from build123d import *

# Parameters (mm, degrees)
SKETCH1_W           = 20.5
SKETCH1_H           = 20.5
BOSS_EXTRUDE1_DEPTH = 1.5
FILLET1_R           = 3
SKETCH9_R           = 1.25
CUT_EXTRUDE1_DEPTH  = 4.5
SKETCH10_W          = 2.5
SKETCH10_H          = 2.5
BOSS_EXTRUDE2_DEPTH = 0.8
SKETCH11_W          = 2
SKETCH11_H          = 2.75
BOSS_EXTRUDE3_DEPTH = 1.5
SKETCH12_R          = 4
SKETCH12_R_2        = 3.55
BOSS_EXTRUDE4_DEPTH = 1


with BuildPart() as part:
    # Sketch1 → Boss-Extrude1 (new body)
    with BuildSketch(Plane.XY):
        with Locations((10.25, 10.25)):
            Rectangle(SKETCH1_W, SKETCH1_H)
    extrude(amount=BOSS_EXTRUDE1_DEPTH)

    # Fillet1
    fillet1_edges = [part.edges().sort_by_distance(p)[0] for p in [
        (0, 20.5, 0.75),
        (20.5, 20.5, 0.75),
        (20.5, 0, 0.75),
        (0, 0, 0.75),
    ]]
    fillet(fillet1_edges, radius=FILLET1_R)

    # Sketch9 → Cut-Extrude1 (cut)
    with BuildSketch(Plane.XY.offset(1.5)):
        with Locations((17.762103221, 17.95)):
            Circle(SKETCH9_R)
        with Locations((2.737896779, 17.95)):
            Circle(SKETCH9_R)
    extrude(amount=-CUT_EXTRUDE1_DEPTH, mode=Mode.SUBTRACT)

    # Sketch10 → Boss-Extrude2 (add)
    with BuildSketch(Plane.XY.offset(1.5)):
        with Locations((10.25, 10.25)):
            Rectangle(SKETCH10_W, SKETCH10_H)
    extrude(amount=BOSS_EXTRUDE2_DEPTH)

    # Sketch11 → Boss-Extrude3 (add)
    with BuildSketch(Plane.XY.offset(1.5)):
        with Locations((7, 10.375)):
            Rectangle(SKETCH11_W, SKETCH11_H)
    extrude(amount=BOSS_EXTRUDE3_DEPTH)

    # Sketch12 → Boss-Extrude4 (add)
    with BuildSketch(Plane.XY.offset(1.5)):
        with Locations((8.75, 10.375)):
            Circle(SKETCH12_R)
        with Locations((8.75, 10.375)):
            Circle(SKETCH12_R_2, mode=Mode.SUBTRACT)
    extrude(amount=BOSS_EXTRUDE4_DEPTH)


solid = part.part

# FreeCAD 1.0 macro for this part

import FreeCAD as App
import Part
import Sketcher

V = App.Vector


def edges_at(feature, points):
    """Names of the edges that pass closest to the given points."""
    edges = feature.Shape.Edges
    near = lambda p: min(range(len(edges)), key=lambda i: edges[i].distToShape(Part.Vertex(*p))[0])
    return sorted({f"Edge{near(p) + 1}" for p in points})


def add_polygon(sketch, points):
    """Adds a closed chain of lines whose ends are joined by coincident constraints."""
    first, n = sketch.GeometryCount, len(points)
    for a, b in zip(points, points[1:] + points[:1]):
        sketch.addGeometry(Part.LineSegment(App.Vector(*a, 0), App.Vector(*b, 0)), False)
    for i in range(n):
        sketch.addConstraint(Sketcher.Constraint("Coincident", first + i, 2, first + (i + 1) % n, 1))

doc = App.newDocument("Part")
body = doc.addObject("PartDesign::Body", "Body")

# Sketch on XY plane
sketch1 = body.newObject("Sketcher::SketchObject", "Sketch")
sketch1.AttachmentSupport = (doc.getObject("XY_Plane"), [""])
sketch1.MapMode = "FlatFace"
add_polygon(sketch1, [(0, 20), (0, 0), (20, 0), (20, 20)])  # lines 0-3
sketch1.addConstraint([
    Sketcher.Constraint("Vertical", 0),
    Sketcher.Constraint("Horizontal", 1),
    Sketcher.Constraint("Vertical", 2),
    Sketcher.Constraint("Horizontal", 3),
    Sketcher.Constraint("Coincident", 0, 2, -1, 1),
    Sketcher.Constraint("Equal", 3, 0),
    Sketcher.Constraint("DistanceX", 1, 1, 1, 2, 20.5),
])
pad1 = body.newObject("PartDesign::Pad", "Pad")
pad1.Profile = sketch1
pad1.Length = 1.5
doc.recompute()

fillet = body.newObject("PartDesign::Fillet", "Fillet")
fillet.Base = (pad1, edges_at(pad1, [
    (0, 20.5, 0.75),
    (20.5, 20.5, 0.75),
    (20.5, 0, 0.75),
    (0, 0, 0.75),
]))
fillet.Radius = 3

# Sketch on XY plane
sketch2 = body.newObject("Sketcher::SketchObject", "Sketch001")
sketch2.AttachmentSupport = (doc.getObject("XY_Plane"), [""])
sketch2.MapMode = "FlatFace"
sketch2.AttachmentOffset = App.Placement(V(0, 0, 1.5), App.Rotation())
sketch2.addGeometry([
    Part.Circle(V(17.8, 17.9, 0), V(0, 0, 1), 1.2),
    Part.Circle(V(2.7, 17.9, 0), V(0, 0, 1), 1.2),
], False)
sketch2.addConstraint([
    Sketcher.Constraint("Equal", 0, 1),
    Sketcher.Constraint("Horizontal", 0, 3, 1, 3),
    Sketcher.Constraint("Diameter", 0, 2.5),
    Sketcher.Constraint("DistanceY", -1, 1, 0, 3, 17.95),
    Sketcher.Constraint("DistanceX", -1, 1, 0, 3, 17.762103),
    Sketcher.Constraint("DistanceX", -1, 1, 1, 3, 2.737897),
])
pocket1 = body.newObject("PartDesign::Pocket", "Pocket")
pocket1.Profile = sketch2
pocket1.Length = 4.5

# Sketch on XY plane
sketch3 = body.newObject("Sketcher::SketchObject", "Sketch002")
sketch3.AttachmentSupport = (doc.getObject("XY_Plane"), [""])
sketch3.MapMode = "FlatFace"
sketch3.AttachmentOffset = App.Placement(V(0, 0, 1.5), App.Rotation())
add_polygon(sketch3, [(9, 11.5), (9, 9), (11.5, 9), (11.5, 11.5)])  # lines 0-3
sketch3.addConstraint([
    Sketcher.Constraint("Vertical", 0),
    Sketcher.Constraint("Horizontal", 1),
    Sketcher.Constraint("Vertical", 2),
    Sketcher.Constraint("Horizontal", 3),
    Sketcher.Constraint("Equal", 3, 0),
    Sketcher.Constraint("DistanceX", 1, 1, 1, 2, 2.5),
    Sketcher.Constraint("DistanceX", -1, 1, 0, 2, 9.0),
    Sketcher.Constraint("DistanceY", -1, 1, 0, 2, 9.0),
])
pad2 = body.newObject("PartDesign::Pad", "Pad001")
pad2.Profile = sketch3
pad2.Length = 0.8

# Sketch on XY plane
sketch4 = body.newObject("Sketcher::SketchObject", "Sketch003")
sketch4.AttachmentSupport = (doc.getObject("XY_Plane"), [""])
sketch4.MapMode = "FlatFace"
sketch4.AttachmentOffset = App.Placement(V(0, 0, 1.5), App.Rotation())
add_polygon(sketch4, [(6, 11.8), (6, 9), (8, 9), (8, 11.8)])  # lines 0-3
sketch4.addConstraint([
    Sketcher.Constraint("Vertical", 0),
    Sketcher.Constraint("Horizontal", 1),
    Sketcher.Constraint("Vertical", 2),
    Sketcher.Constraint("Horizontal", 3),
    Sketcher.Constraint("DistanceX", 1, 1, 1, 2, 2.0),
    Sketcher.Constraint("DistanceX", -1, 1, 0, 2, 6.0),
    Sketcher.Constraint("DistanceY", -1, 1, 0, 2, 9.0),
    Sketcher.Constraint("DistanceY", 0, 2, 0, 1, 2.75),
])
pad3 = body.newObject("PartDesign::Pad", "Pad002")
pad3.Profile = sketch4
pad3.Length = 1.5

# Sketch on XY plane
sketch5 = body.newObject("Sketcher::SketchObject", "Sketch004")
sketch5.AttachmentSupport = (doc.getObject("XY_Plane"), [""])
sketch5.MapMode = "FlatFace"
sketch5.AttachmentOffset = App.Placement(V(0, 0, 1.5), App.Rotation())
sketch5.addGeometry([
    Part.Circle(V(8.8, 10.4, 0), V(0, 0, 1), 4),
    Part.Circle(V(8.8, 10.4, 0), V(0, 0, 1), 3.5),
], False)
sketch5.addConstraint([
    Sketcher.Constraint("Coincident", 1, 3, 0, 3),
    Sketcher.Constraint("Diameter", 0, 8.0),
    Sketcher.Constraint("Diameter", 1, 7.1),
    Sketcher.Constraint("DistanceX", -1, 1, 0, 3, 8.75),
    Sketcher.Constraint("DistanceY", -1, 1, 0, 3, 10.375),
])
pad4 = body.newObject("PartDesign::Pad", "Pad003")
pad4.Profile = sketch5
pad4.Length = 1

doc.recompute()
